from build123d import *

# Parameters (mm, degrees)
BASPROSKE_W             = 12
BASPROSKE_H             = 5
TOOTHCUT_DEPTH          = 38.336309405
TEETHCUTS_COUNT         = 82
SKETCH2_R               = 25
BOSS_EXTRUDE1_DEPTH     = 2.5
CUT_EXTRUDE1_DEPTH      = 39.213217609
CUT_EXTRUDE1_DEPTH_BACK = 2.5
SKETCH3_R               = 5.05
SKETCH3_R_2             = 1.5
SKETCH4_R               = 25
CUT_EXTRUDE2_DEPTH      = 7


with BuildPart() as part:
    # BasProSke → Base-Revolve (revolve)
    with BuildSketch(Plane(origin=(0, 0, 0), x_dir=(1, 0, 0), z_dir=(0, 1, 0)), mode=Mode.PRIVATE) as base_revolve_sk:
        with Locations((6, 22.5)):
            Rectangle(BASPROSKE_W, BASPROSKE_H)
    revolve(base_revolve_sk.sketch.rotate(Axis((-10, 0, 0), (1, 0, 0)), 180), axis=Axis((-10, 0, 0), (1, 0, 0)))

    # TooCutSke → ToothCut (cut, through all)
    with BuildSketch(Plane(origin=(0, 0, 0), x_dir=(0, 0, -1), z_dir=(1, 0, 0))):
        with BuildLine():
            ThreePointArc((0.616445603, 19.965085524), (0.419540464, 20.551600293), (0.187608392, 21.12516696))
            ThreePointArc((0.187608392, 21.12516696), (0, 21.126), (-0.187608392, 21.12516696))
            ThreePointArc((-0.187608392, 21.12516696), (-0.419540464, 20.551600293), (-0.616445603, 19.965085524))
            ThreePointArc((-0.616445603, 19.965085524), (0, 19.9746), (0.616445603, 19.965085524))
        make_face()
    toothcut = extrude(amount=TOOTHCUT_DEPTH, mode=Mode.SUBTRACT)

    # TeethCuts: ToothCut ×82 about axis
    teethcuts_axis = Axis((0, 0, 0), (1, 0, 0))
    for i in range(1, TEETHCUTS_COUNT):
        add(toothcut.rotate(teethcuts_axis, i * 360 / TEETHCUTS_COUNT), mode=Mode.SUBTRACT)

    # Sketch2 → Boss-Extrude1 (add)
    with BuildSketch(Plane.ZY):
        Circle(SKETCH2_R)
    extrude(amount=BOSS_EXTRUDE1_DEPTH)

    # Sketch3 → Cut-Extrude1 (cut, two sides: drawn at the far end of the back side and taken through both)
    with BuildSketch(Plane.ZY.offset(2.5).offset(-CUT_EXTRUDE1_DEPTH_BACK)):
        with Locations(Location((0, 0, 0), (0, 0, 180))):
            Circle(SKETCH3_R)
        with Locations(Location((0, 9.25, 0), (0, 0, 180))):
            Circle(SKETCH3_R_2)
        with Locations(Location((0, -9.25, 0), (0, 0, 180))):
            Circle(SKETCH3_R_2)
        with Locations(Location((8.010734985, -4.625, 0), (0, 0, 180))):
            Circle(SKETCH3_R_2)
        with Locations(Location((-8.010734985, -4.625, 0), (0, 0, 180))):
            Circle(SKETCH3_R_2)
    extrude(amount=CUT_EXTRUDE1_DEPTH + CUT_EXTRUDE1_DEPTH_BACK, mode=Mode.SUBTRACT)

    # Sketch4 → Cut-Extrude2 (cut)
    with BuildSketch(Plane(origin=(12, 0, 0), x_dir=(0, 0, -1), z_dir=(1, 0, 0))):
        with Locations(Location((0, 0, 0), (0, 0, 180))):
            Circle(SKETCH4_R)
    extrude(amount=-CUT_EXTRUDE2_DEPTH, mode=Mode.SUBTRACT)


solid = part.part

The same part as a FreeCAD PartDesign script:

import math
import FreeCAD as App
import Part
import Sketcher
from FreeCAD import Vector
Q = App.Units.Quantity

doc = App.newDocument("Part")
body = doc.addObject("PartDesign::Body", "Body")

# Sketch on XZ plane
sketch1 = doc.addObject("Sketcher::SketchObject", "Sketch")
body.addObject(sketch1)
sketch1.AttachmentSupport = (doc.XZ_Plane, [""])
sketch1.MapMode = "FlatFace"
sketch1.addGeometry(Part.LineSegment(Vector(0, -25, 0), Vector(0, -20, 0)), False)
sketch1.addGeometry(Part.LineSegment(Vector(0, -20, 0), Vector(12, -20, 0)), False)
sketch1.addGeometry(Part.LineSegment(Vector(12, -20, 0), Vector(12, -25, 0)), False)
sketch1.addGeometry(Part.LineSegment(Vector(12, -25, 0), Vector(0, -25, 0)), False)
sketch1.addConstraint(Sketcher.Constraint("Coincident", 0, 2, 1, 1))
sketch1.addConstraint(Sketcher.Constraint("Coincident", 1, 2, 2, 1))
sketch1.addConstraint(Sketcher.Constraint("Coincident", 2, 2, 3, 1))
sketch1.addConstraint(Sketcher.Constraint("Coincident", 3, 2, 0, 1))
sketch1.addConstraint(Sketcher.Constraint("Vertical", 0))
sketch1.addConstraint(Sketcher.Constraint("Horizontal", 1))
sketch1.addConstraint(Sketcher.Constraint("Vertical", 2))
sketch1.addConstraint(Sketcher.Constraint("Horizontal", 3))
sketch1.addConstraint(Sketcher.Constraint("PointOnObject", 0, 2, -2))
sketch1.addConstraint(Sketcher.Constraint("DistanceX", 1, 1, 1, 2, Q("12 mm")))
sketch1.addConstraint(Sketcher.Constraint("DistanceY", 0, 1, 0, 2, Q("5 mm")))
sketch1.addConstraint(Sketcher.Constraint("DistanceY", 0, 2, -1, 1, Q("20 mm")))
revolution = doc.addObject("PartDesign::Revolution", "Revolution")
body.addObject(revolution)
revolution.Profile = sketch1
revolution.ReferenceAxis = (sketch1, ["H_Axis"])
revolution.Angle = 360

# Sketch on YZ plane
sketch2 = doc.addObject("Sketcher::SketchObject", "Sketch001")
body.addObject(sketch2)
sketch2.AttachmentSupport = (doc.YZ_Plane, [""])
sketch2.MapMode = "FlatFace"
sketch2.addGeometry(Part.ArcOfCircle(Part.Circle(Vector(17, 9.19, 0), Vector(0, 0, 1), 10.25), math.radians(-73.17), math.radians(-66.25)), False)
sketch2.addGeometry(Part.ArcOfCircle(Part.Circle(Vector(0, 0, 0), Vector(0, 0, 1), 21.13), math.radians(-0.51), math.radians(0.51)), False)
sketch2.addGeometry(Part.ArcOfCircle(Part.Circle(Vector(17, -9.19, 0), Vector(0, 0, 1), 10.25), math.radians(66.25), math.radians(73.17)), False)
sketch2.addGeometry(Part.ArcOfCircle(Part.Circle(Vector(0, 0, 0), Vector(0, 0, 1), 19.97), math.radians(-1.77), math.radians(1.77)), False)
sketch2.addConstraint(Sketcher.Constraint("Coincident", 0, 2, 1, 1))
sketch2.addConstraint(Sketcher.Constraint("Coincident", 1, 2, 2, 1))
sketch2.addConstraint(Sketcher.Constraint("Coincident", 2, 2, 3, 2))
sketch2.addConstraint(Sketcher.Constraint("Coincident", 3, 1, 0, 1))
sketch2.addConstraint(Sketcher.Constraint("Coincident", 1, 3, -1, 1))
sketch2.addConstraint(Sketcher.Constraint("Coincident", 3, 3, -1, 1))
sketch2.addConstraint(Sketcher.Constraint("Equal", 0, 2))
sketch2.addConstraint(Sketcher.Constraint("Symmetric", 0, 3, 2, 3, -1))
sketch2.addConstraint(Sketcher.Constraint("Radius", 0, Q("10.25 mm")))
sketch2.addConstraint(Sketcher.Constraint("Radius", 3, Q("19.9746 mm")))
sketch2.addConstraint(Sketcher.Constraint("Radius", 1, Q("21.125998 mm")))
sketch2.addConstraint(Sketcher.Constraint("DistanceY", 0, 2, -1, 1, Q("0.187608 mm")))
sketch2.addConstraint(Sketcher.Constraint("DistanceX", 1, 3, 0, 3, Q("16.997622 mm")))
pocket1 = doc.addObject("PartDesign::Pocket", "Pocket")
body.addObject(pocket1)
pocket1.Profile = sketch2
pocket1.Type = "ThroughAll"
pocket1.Reversed = True
doc.recompute()

polarpattern = doc.addObject("PartDesign::PolarPattern", "PolarPattern")
body.addObject(polarpattern)
polarpattern.Originals = [pocket1]
polarpattern.Axis = (doc.X_Axis, [""])
polarpattern.Angle = 360
polarpattern.Occurrences = 82
body.Tip = polarpattern

# Sketch on YZ plane
sketch3 = doc.addObject("Sketcher::SketchObject", "Sketch002")
body.addObject(sketch3)
sketch3.AttachmentSupport = (doc.YZ_Plane, [""])
sketch3.MapMode = "FlatFace"
sketch3.addGeometry(Part.Circle(Vector(0, 0, 0), Vector(0, 0, 1), 25), False)
sketch3.addConstraint(Sketcher.Constraint("Coincident", 0, 3, -1, 1))
sketch3.addConstraint(Sketcher.Constraint("Diameter", 0, Q("50 mm")))
pad1 = doc.addObject("PartDesign::Pad", "Pad")
body.addObject(pad1)
pad1.Profile = sketch3
pad1.Length = 2.5
pad1.Reversed = True

# Sketch on YZ plane
sketch4 = doc.addObject("Sketcher::SketchObject", "Sketch003")
body.addObject(sketch4)
sketch4.AttachmentSupport = (doc.YZ_Plane, [""])
sketch4.MapMode = "FlatFace"
sketch4.AttachmentOffset = App.Placement(Vector(0, 0, -2.5), App.Rotation())
sketch4.addGeometry(Part.Circle(Vector(0, 0, 0), Vector(0, 0, 1), 5), False)
sketch4.addGeometry(Part.Circle(Vector(9.2, 0, 0), Vector(0, 0, 1), 1.5), False)
sketch4.addGeometry(Part.Circle(Vector(-9.2, 0, 0), Vector(0, 0, 1), 1.5), False)
sketch4.addGeometry(Part.Circle(Vector(-4.6, 8, 0), Vector(0, 0, 1), 1.5), False)
sketch4.addGeometry(Part.Circle(Vector(-4.6, -8, 0), Vector(0, 0, 1), 1.5), False)
sketch4.addConstraint(Sketcher.Constraint("Coincident", 0, 3, -1, 1))
sketch4.addConstraint(Sketcher.Constraint("Equal", 1, 2))
sketch4.addConstraint(Sketcher.Constraint("Equal", 2, 3))
sketch4.addConstraint(Sketcher.Constraint("Equal", 3, 4))
sketch4.addConstraint(Sketcher.Constraint("Symmetric", 1, 3, 2, 3, -1, 1))
sketch4.addConstraint(Sketcher.Constraint("Symmetric", 3, 3, 4, 3, -1))
sketch4.addConstraint(Sketcher.Constraint("PointOnObject", 1, 3, -1))
sketch4.addConstraint(Sketcher.Constraint("Diameter", 1, Q("3 mm")))
sketch4.addConstraint(Sketcher.Constraint("Diameter", 0, Q("10.1 mm")))
sketch4.addConstraint(Sketcher.Constraint("DistanceX", 2, 3, 1, 3, Q("18.5 mm")))
sketch4.addConstraint(Sketcher.Constraint("DistanceX", 3, 3, -1, 1, Q("4.625 mm")))
sketch4.addConstraint(Sketcher.Constraint("DistanceY", 4, 3, 3, 3, Q("16.02147 mm")))
pocket2 = doc.addObject("PartDesign::Pocket", "Pocket001")
body.addObject(pocket2)
pocket2.Profile = sketch4
pocket2.Type = "ThroughAll"
pocket2.Midplane = True

# Sketch on YZ plane
sketch5 = doc.addObject("Sketcher::SketchObject", "Sketch004")
body.addObject(sketch5)
sketch5.AttachmentSupport = (doc.YZ_Plane, [""])
sketch5.MapMode = "FlatFace"
sketch5.AttachmentOffset = App.Placement(Vector(0, 0, 12), App.Rotation())
sketch5.addGeometry(Part.Circle(Vector(0, 0, 0), Vector(0, 0, 1), 25), False)
sketch5.addConstraint(Sketcher.Constraint("Coincident", 0, 3, -1, 1))
sketch5.addConstraint(Sketcher.Constraint("Diameter", 0, Q("50 mm")))
pocket3 = doc.addObject("PartDesign::Pocket", "Pocket002")
body.addObject(pocket3)
pocket3.Profile = sketch5
pocket3.Length = 7

doc.recompute()
